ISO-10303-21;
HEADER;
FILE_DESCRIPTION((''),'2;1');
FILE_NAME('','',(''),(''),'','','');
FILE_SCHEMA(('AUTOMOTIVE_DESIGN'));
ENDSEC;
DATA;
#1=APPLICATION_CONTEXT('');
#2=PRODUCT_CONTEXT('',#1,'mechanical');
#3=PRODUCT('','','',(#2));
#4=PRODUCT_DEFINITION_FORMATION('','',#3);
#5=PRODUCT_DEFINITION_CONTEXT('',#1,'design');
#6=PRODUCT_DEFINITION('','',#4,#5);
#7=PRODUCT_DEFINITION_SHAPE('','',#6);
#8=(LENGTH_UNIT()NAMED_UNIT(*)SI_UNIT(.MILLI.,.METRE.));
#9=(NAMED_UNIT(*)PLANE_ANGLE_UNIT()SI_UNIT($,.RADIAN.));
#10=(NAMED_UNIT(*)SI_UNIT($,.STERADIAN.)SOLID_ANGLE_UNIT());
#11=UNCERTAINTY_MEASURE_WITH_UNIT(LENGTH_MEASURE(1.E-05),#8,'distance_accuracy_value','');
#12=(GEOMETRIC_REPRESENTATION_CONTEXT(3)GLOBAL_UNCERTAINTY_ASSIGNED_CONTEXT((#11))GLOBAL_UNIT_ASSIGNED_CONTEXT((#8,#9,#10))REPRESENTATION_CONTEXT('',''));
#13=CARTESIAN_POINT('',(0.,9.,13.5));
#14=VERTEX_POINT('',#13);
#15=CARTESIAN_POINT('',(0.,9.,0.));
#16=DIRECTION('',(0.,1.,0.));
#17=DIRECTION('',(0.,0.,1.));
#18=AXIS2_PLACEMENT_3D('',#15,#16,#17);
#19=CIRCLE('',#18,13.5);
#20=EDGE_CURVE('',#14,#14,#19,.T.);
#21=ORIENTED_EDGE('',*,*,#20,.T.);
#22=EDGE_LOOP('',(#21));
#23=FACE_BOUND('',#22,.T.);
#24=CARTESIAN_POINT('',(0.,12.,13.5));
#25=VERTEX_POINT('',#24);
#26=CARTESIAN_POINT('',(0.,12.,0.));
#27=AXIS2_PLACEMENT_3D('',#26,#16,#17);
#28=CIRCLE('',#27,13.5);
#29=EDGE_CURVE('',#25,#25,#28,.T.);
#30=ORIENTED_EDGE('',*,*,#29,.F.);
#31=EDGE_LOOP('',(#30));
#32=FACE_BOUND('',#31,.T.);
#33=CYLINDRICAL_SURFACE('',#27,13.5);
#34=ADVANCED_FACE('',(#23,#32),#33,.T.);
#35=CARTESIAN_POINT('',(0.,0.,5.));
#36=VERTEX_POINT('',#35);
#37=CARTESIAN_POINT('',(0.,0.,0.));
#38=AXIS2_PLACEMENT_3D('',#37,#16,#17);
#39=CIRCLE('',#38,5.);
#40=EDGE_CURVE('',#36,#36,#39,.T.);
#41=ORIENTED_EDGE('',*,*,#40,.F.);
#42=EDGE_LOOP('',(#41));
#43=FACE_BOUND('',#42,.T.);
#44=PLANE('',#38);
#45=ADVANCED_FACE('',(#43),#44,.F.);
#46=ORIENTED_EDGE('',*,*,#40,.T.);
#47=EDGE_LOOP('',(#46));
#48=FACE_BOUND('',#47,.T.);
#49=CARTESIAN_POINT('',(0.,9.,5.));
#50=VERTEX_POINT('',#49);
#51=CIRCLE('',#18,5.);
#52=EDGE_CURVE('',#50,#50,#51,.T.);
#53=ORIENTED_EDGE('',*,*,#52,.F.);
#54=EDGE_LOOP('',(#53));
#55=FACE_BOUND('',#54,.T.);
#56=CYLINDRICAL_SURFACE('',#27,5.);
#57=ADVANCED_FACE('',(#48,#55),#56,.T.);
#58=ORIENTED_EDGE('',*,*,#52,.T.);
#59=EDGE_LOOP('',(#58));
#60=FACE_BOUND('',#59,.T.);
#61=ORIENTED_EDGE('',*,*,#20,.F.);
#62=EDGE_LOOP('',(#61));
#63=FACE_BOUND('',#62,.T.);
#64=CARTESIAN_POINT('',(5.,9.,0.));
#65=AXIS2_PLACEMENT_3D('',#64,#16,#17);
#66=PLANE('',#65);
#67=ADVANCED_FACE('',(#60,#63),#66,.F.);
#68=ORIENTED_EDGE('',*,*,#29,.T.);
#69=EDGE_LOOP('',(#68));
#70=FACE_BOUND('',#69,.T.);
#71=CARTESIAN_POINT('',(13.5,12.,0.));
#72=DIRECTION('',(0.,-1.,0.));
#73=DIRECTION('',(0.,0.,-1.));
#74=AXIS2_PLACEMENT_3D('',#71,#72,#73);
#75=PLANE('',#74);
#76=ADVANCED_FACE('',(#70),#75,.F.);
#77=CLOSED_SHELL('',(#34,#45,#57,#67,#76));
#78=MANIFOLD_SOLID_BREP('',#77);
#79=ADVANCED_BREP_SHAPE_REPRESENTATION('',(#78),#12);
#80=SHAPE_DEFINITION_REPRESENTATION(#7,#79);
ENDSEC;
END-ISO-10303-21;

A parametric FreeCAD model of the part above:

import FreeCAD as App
import Part
import Sketcher


def add_polygon(sketch, points):
    """Adds a closed chain of lines whose ends are joined by coincident constraints."""
    first, n = sketch.GeometryCount, len(points)
    for a, b in zip(points, points[1:] + points[:1]):
        sketch.addGeometry(Part.LineSegment(App.Vector(*a, 0), App.Vector(*b, 0)), False)
    for i in range(n):
        sketch.addConstraint(Sketcher.Constraint("Coincident", first + i, 2, first + (i + 1) % n, 1))

doc = App.newDocument("Part")
body = doc.addObject("PartDesign::Body", "Body")

# Sketch on XY plane
sketch1 = body.newObject("Sketcher::SketchObject", "Sketch")
sketch1.AttachmentSupport = (doc.getObject("XY_Plane"), [""])
sketch1.MapMode = "FlatFace"
add_polygon(sketch1, [(0, 0), (5, 0), (5, 9), (13.5, 9), (13.5, 12), (0, 12)])  # lines 0-5
sketch1.addConstraint([
    Sketcher.Constraint("Horizontal", 0),
    Sketcher.Constraint("Vertical", 1),
    Sketcher.Constraint("Horizontal", 2),
    Sketcher.Constraint("Vertical", 3),
    Sketcher.Constraint("Horizontal", 4),
    Sketcher.Constraint("Vertical", 5),
    Sketcher.Constraint("Coincident", 5, 2, -1, 1),
    Sketcher.Constraint("DistanceX", 0, 1, 0, 2, 5.0),
    Sketcher.Constraint("DistanceY", 1, 1, 1, 2, 9.0),
    Sketcher.Constraint("DistanceY", 3, 1, 3, 2, 3.0),
    Sketcher.Constraint("DistanceX", 2, 1, 2, 2, 8.5),
])
revolution = body.newObject("PartDesign::Revolution", "Revolution")
revolution.Profile = sketch1
revolution.ReferenceAxis = (sketch1, ["V_Axis"])
revolution.Angle = 360

doc.recompute()
